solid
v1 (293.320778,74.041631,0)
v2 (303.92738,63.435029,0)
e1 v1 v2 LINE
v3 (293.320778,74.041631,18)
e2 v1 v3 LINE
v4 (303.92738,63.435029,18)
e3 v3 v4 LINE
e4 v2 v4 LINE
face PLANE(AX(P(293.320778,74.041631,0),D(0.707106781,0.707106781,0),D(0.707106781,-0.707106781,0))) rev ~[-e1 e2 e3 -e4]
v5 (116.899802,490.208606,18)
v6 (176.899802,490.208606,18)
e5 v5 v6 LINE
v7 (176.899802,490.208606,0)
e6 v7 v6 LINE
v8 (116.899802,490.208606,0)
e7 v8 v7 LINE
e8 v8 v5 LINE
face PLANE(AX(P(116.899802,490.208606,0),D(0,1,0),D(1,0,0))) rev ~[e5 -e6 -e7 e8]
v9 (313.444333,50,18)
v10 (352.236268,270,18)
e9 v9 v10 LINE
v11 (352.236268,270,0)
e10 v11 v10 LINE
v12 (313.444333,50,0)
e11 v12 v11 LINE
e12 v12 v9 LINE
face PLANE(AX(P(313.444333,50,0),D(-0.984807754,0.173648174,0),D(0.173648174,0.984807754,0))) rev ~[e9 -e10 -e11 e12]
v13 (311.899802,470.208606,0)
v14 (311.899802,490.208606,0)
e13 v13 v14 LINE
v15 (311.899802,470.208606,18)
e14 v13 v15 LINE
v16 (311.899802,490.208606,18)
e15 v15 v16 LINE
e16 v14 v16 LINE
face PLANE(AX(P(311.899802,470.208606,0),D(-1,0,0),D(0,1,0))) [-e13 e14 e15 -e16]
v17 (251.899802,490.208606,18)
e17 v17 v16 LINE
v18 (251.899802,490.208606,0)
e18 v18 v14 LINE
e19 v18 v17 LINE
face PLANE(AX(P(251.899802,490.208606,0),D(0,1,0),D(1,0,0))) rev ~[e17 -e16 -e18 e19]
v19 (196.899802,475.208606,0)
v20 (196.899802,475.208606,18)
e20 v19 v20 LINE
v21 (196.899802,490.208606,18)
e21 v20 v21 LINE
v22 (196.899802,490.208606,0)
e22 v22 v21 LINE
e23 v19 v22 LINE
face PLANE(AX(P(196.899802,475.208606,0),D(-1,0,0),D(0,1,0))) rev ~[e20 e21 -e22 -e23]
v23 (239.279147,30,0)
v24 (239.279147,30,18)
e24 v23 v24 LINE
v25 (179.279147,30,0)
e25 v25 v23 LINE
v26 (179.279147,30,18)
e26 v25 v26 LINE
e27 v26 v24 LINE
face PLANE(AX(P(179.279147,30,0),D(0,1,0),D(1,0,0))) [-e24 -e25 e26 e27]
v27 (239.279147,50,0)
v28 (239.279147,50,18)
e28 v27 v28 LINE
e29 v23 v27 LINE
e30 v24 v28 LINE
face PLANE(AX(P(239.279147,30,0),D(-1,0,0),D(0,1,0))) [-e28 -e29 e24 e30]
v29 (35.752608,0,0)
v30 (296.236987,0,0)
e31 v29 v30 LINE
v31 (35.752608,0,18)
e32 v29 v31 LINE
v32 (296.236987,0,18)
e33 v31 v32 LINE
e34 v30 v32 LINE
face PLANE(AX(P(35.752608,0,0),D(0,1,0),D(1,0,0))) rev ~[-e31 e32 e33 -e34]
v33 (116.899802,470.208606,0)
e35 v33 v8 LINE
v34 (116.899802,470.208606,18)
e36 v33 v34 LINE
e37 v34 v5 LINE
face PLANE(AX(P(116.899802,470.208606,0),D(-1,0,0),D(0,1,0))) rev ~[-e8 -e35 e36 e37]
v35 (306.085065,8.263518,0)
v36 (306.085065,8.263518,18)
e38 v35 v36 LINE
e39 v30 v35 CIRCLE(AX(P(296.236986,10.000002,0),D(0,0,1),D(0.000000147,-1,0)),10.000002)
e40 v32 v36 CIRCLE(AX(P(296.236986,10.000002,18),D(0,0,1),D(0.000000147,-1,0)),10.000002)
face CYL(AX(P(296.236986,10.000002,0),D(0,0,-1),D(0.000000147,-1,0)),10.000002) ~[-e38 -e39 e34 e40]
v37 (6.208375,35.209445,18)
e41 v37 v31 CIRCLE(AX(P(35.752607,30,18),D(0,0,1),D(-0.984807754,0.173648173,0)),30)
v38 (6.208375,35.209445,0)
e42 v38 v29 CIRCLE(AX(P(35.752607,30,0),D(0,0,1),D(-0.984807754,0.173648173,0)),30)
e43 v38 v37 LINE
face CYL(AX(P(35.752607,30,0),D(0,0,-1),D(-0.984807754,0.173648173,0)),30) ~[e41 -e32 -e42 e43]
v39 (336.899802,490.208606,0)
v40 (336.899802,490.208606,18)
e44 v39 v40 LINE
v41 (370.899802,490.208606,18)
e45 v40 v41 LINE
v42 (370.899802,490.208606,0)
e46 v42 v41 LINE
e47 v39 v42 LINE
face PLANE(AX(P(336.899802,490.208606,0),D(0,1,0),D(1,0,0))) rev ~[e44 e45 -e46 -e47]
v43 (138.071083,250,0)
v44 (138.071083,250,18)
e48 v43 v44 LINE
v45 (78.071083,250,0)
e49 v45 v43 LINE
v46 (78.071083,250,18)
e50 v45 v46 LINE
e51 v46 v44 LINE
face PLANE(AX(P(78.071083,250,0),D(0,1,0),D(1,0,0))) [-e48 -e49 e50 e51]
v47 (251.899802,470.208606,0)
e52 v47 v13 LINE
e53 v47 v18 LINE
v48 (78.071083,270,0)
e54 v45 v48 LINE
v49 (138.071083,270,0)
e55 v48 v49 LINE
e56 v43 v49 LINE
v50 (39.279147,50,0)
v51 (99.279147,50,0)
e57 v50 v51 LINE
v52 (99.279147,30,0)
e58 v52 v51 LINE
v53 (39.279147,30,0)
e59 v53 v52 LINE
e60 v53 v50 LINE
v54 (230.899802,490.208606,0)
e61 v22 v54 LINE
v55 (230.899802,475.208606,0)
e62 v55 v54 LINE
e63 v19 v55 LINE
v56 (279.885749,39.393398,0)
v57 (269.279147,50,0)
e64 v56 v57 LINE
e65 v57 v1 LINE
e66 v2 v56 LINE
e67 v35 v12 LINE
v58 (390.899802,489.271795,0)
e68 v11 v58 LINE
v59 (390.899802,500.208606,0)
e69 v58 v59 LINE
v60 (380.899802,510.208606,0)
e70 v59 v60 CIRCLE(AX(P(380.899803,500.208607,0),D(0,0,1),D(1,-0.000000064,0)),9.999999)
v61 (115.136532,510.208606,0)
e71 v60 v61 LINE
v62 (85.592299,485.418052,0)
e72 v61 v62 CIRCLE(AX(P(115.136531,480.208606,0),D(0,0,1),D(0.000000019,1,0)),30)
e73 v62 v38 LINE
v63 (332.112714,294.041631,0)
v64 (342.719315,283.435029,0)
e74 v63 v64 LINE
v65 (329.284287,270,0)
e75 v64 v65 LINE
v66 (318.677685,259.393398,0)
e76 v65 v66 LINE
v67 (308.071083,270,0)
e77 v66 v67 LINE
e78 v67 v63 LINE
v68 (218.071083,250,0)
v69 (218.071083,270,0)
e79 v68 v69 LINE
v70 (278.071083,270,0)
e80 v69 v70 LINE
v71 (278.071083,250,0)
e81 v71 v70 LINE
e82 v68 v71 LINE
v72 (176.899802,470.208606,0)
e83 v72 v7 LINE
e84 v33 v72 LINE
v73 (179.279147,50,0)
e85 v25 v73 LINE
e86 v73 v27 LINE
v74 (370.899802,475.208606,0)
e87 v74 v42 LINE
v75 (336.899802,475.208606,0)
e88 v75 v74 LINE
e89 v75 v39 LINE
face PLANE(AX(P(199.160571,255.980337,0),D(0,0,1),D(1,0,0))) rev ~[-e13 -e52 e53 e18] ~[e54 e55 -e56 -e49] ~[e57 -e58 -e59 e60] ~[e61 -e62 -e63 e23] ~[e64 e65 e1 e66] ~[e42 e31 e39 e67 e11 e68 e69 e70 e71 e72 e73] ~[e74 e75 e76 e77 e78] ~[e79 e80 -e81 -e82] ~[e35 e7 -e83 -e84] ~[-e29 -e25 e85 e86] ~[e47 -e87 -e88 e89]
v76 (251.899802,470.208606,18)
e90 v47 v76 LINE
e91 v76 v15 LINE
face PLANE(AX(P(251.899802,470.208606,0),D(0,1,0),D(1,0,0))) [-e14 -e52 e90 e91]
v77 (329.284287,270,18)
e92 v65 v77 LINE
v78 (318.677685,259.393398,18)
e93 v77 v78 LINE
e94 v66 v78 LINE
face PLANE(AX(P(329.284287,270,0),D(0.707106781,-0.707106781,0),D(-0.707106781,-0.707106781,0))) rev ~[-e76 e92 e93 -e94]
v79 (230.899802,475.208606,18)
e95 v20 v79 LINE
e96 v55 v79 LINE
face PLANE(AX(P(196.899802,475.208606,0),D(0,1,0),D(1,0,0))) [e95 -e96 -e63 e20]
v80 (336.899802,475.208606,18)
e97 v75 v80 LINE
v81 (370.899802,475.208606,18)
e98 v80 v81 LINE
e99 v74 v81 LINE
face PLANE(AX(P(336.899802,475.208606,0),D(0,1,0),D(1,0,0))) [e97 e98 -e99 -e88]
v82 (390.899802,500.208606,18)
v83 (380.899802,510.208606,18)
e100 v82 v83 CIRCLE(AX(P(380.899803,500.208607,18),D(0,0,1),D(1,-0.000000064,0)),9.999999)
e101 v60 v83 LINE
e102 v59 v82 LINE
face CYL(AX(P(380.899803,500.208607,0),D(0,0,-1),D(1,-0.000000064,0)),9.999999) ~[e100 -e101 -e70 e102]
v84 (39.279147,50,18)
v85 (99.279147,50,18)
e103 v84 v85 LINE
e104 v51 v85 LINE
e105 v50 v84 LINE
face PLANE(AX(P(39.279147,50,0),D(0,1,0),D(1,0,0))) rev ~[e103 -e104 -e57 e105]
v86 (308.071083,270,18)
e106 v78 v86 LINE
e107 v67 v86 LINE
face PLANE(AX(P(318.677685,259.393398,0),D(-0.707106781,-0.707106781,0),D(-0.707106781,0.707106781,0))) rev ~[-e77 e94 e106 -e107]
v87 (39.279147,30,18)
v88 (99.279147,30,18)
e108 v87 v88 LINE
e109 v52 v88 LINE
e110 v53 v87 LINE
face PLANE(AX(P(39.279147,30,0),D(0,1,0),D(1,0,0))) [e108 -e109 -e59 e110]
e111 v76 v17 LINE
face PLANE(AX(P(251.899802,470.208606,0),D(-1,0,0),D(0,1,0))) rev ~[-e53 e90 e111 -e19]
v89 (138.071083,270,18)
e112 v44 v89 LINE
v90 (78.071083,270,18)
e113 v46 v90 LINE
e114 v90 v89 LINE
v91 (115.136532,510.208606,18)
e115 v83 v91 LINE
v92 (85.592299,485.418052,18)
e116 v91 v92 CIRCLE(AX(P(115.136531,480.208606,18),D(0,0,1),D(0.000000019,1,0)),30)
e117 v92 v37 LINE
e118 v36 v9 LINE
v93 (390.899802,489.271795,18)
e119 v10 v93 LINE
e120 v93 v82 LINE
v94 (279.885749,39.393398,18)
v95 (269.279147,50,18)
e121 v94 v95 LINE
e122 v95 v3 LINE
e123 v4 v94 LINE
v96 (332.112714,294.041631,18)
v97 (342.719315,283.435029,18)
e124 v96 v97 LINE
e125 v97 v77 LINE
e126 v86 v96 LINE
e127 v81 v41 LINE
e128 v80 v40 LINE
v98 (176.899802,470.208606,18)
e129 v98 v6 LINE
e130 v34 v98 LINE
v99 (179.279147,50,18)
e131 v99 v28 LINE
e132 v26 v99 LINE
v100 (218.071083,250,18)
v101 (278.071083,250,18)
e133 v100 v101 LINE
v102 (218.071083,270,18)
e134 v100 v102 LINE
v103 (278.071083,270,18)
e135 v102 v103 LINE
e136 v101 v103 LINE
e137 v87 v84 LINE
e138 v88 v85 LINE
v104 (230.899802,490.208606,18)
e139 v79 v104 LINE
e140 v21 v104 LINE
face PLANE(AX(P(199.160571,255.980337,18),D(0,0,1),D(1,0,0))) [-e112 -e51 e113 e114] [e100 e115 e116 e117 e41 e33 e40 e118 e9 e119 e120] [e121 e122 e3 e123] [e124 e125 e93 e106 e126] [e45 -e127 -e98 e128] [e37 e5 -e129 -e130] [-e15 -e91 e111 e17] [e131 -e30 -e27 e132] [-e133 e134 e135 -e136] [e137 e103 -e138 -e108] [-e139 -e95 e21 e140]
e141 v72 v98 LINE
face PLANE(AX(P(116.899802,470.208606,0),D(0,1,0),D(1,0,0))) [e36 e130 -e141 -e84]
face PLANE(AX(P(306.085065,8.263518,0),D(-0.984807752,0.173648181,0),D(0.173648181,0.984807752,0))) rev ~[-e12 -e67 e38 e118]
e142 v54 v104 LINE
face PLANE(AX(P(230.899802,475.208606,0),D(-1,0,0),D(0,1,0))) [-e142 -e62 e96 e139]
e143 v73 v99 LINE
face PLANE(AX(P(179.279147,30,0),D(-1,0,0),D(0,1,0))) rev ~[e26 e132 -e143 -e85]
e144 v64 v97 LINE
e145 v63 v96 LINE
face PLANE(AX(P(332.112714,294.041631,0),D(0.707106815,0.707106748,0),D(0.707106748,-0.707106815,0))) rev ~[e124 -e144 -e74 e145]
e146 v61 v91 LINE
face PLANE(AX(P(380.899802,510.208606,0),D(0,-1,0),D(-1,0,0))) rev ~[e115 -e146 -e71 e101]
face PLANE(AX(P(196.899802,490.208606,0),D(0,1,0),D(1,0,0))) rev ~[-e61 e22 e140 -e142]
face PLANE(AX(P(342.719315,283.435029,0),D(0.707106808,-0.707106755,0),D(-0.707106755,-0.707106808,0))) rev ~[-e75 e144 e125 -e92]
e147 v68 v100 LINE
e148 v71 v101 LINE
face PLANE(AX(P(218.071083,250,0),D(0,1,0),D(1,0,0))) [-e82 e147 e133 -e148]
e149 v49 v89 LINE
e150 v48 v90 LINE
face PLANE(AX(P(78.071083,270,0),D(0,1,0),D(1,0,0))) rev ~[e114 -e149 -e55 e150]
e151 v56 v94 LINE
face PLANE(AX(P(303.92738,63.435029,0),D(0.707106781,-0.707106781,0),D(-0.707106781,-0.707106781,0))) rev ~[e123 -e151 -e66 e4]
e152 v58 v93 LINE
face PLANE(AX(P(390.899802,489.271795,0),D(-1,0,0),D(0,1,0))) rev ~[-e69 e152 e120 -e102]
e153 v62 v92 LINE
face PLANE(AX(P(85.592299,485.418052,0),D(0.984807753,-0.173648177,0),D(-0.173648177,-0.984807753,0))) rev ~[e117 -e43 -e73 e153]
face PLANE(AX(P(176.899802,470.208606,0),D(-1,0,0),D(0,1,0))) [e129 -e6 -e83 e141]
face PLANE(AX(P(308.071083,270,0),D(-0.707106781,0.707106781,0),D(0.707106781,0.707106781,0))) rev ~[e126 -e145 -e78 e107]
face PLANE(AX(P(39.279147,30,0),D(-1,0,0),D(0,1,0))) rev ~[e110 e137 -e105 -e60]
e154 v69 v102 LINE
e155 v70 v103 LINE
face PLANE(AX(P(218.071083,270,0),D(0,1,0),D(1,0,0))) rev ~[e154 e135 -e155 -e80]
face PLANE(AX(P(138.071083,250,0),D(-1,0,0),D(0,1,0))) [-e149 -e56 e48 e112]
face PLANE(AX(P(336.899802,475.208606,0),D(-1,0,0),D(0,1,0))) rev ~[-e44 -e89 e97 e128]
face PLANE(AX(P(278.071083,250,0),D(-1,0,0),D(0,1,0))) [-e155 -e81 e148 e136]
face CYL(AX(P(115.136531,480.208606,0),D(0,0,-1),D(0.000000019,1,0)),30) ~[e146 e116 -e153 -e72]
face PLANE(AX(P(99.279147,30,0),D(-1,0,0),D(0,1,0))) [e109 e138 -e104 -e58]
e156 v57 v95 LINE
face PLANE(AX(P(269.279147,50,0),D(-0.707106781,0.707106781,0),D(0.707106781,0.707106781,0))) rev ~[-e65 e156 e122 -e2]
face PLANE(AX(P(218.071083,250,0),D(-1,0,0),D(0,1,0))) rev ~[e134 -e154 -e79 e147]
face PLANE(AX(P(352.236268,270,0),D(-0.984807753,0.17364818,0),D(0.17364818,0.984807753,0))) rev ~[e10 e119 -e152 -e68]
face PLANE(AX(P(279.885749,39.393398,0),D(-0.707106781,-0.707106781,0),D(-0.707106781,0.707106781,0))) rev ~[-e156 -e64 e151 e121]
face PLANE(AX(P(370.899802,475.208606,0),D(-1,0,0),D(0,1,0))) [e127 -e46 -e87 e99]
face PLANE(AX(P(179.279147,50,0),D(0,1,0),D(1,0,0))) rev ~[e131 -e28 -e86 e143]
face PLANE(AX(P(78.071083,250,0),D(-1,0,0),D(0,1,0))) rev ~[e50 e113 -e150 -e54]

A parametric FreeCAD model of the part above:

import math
import FreeCAD as App
import Part
import Sketcher
Q = App.Units.Quantity


def add_polygon(sketch, points):
    """Adds a closed chain of lines whose ends are joined by coincident constraints."""
    first, n = sketch.GeometryCount, len(points)
    for a, b in zip(points, points[1:] + points[:1]):
        sketch.addGeometry(Part.LineSegment(App.Vector(*a, 0), App.Vector(*b, 0)), False)
    for i in range(n):
        sketch.addConstraint(Sketcher.Constraint("Coincident", first + i, 2, first + (i + 1) % n, 1))

doc = App.newDocument("Part")
body = doc.addObject("PartDesign::Body", "Body")

# Sketch on XY plane
sketch1 = body.newObject("Sketcher::SketchObject", "Sketch")
sketch1.AttachmentSupport = (doc.getObject("XY_Plane"), [""])
sketch1.MapMode = "FlatFace"
sketch1.addGeometry(Part.ArcOfCircle(Part.Circle(App.Vector(115, 480, 0), App.Vector(0, 0, 1), 30), math.radians(90), math.radians(170)), False)  # 0
sketch1.addGeometry(Part.LineSegment(App.Vector(86, 485, 0), App.Vector(6, 35, 0)), False)  # 1
sketch1.addGeometry(Part.ArcOfCircle(Part.Circle(App.Vector(36, 30, 0), App.Vector(0, 0, 1), 30), math.radians(170), math.radians(270)), False)  # 2
sketch1.addGeometry(Part.LineSegment(App.Vector(36, 0, 0), App.Vector(296, 0, 0)), False)  # 3
sketch1.addGeometry(Part.ArcOfCircle(Part.Circle(App.Vector(296, 10, 0), App.Vector(0, 0, 1), 10), math.radians(-90), math.radians(-10)), False)  # 4
sketch1.addGeometry(Part.LineSegment(App.Vector(306, 8, 0), App.Vector(313, 50, 0)), False)  # 5
sketch1.addGeometry(Part.LineSegment(App.Vector(313, 50, 0), App.Vector(352, 270, 0)), False)  # 6
sketch1.addGeometry(Part.LineSegment(App.Vector(352, 270, 0), App.Vector(391, 489, 0)), False)  # 7
sketch1.addGeometry(Part.LineSegment(App.Vector(391, 489, 0), App.Vector(391, 500, 0)), False)  # 8
sketch1.addGeometry(Part.ArcOfCircle(Part.Circle(App.Vector(381, 500, 0), App.Vector(0, 0, 1), 10), math.radians(0), math.radians(90)), False)  # 9
sketch1.addGeometry(Part.LineSegment(App.Vector(381, 510, 0), App.Vector(115, 510, 0)), False)  # 10
add_polygon(sketch1, [(99, 30), (39, 30), (39, 50), (99, 50)])  # lines 11-14
add_polygon(sketch1, [(138, 250), (78, 250), (78, 270), (138, 270)])  # lines 15-18
add_polygon(sketch1, [(239, 30), (179, 30), (179, 50), (239, 50)])  # lines 19-22
add_polygon(sketch1, [(293, 74), (304, 63), (280, 39), (269, 50)])  # lines 23-26
add_polygon(sketch1, [(278, 250), (218, 250), (218, 270), (278, 270)])  # lines 27-30
add_polygon(sketch1, [(177, 470), (117, 470), (117, 490), (177, 490)])  # lines 31-34
add_polygon(sketch1, [(332, 294), (343, 283), (329, 270), (319, 259), (308, 270)])  # lines 35-39
add_polygon(sketch1, [(231, 475), (197, 475), (197, 490), (231, 490)])  # lines 40-43
add_polygon(sketch1, [(312, 470), (252, 470), (252, 490), (312, 490)])  # lines 44-47
add_polygon(sketch1, [(371, 475), (337, 475), (337, 490), (371, 490)])  # lines 48-51
sketch1.addConstraint(Sketcher.Constraint("Tangent", 0, 2, 1, 1))
sketch1.addConstraint(Sketcher.Constraint("Tangent", 1, 2, 2, 1))
sketch1.addConstraint(Sketcher.Constraint("Tangent", 2, 2, 3, 1))
sketch1.addConstraint(Sketcher.Constraint("Tangent", 3, 2, 4, 1))
sketch1.addConstraint(Sketcher.Constraint("Tangent", 4, 2, 5, 1))
sketch1.addConstraint(Sketcher.Constraint("Coincident", 5, 2, 6, 1))
sketch1.addConstraint(Sketcher.Constraint("Coincident", 6, 2, 7, 1))
sketch1.addConstraint(Sketcher.Constraint("Coincident", 7, 2, 8, 1))
sketch1.addConstraint(Sketcher.Constraint("Tangent", 8, 2, 9, 1))
sketch1.addConstraint(Sketcher.Constraint("Tangent", 9, 2, 10, 1))
sketch1.addConstraint(Sketcher.Constraint("Tangent", 10, 2, 0, 1))
sketch1.addConstraint(Sketcher.Constraint("Horizontal", 3))
sketch1.addConstraint(Sketcher.Constraint("Vertical", 8))
sketch1.addConstraint(Sketcher.Constraint("Horizontal", 10))
sketch1.addConstraint(Sketcher.Constraint("Horizontal", 11))
sketch1.addConstraint(Sketcher.Constraint("Vertical", 12))
sketch1.addConstraint(Sketcher.Constraint("Horizontal", 13))
sketch1.addConstraint(Sketcher.Constraint("Vertical", 14))
sketch1.addConstraint(Sketcher.Constraint("Horizontal", 15))
sketch1.addConstraint(Sketcher.Constraint("Vertical", 16))
sketch1.addConstraint(Sketcher.Constraint("Horizontal", 17))
sketch1.addConstraint(Sketcher.Constraint("Vertical", 18))
sketch1.addConstraint(Sketcher.Constraint("Horizontal", 19))
sketch1.addConstraint(Sketcher.Constraint("Vertical", 20))
sketch1.addConstraint(Sketcher.Constraint("Horizontal", 21))
sketch1.addConstraint(Sketcher.Constraint("Vertical", 22))
sketch1.addConstraint(Sketcher.Constraint("Horizontal", 27))
sketch1.addConstraint(Sketcher.Constraint("Vertical", 28))
sketch1.addConstraint(Sketcher.Constraint("Horizontal", 29))
sketch1.addConstraint(Sketcher.Constraint("Vertical", 30))
sketch1.addConstraint(Sketcher.Constraint("Horizontal", 31))
sketch1.addConstraint(Sketcher.Constraint("Vertical", 32))
sketch1.addConstraint(Sketcher.Constraint("Horizontal", 33))
sketch1.addConstraint(Sketcher.Constraint("Vertical", 34))
sketch1.addConstraint(Sketcher.Constraint("Horizontal", 40))
sketch1.addConstraint(Sketcher.Constraint("Vertical", 41))
sketch1.addConstraint(Sketcher.Constraint("Horizontal", 42))
sketch1.addConstraint(Sketcher.Constraint("Vertical", 43))
sketch1.addConstraint(Sketcher.Constraint("Horizontal", 44))
sketch1.addConstraint(Sketcher.Constraint("Vertical", 45))
sketch1.addConstraint(Sketcher.Constraint("Horizontal", 46))
sketch1.addConstraint(Sketcher.Constraint("Vertical", 47))
sketch1.addConstraint(Sketcher.Constraint("Horizontal", 48))
sketch1.addConstraint(Sketcher.Constraint("Vertical", 49))
sketch1.addConstraint(Sketcher.Constraint("Horizontal", 50))
sketch1.addConstraint(Sketcher.Constraint("Vertical", 51))
sketch1.addConstraint(Sketcher.Constraint("Equal", 0, 2))
sketch1.addConstraint(Sketcher.Constraint("PointOnObject", 2, 2, -1))
sketch1.addConstraint(Sketcher.Constraint("Parallel", 1, 5))
sketch1.addConstraint(Sketcher.Constraint("Parallel", 5, 6))
sketch1.addConstraint(Sketcher.Constraint("Parallel", 6, 7))
sketch1.addConstraint(Sketcher.Constraint("Perpendicular", 23, 24))
sketch1.addConstraint(Sketcher.Constraint("Perpendicular", 24, 25))
sketch1.addConstraint(Sketcher.Constraint("Perpendicular", 25, 26))
sketch1.addConstraint(Sketcher.Constraint("Perpendicular", 26, 35))
sketch1.addConstraint(Sketcher.Constraint("Perpendicular", 35, 36))
sketch1.addConstraint(Sketcher.Constraint("Parallel", 36, 37))
sketch1.addConstraint(Sketcher.Constraint("Perpendicular", 37, 38))
sketch1.addConstraint(Sketcher.Constraint("Perpendicular", 38, 39))
sketch1.addConstraint(Sketcher.Constraint("Horizontal", 2, 3, 11, 2))
sketch1.addConstraint(Sketcher.Constraint("Horizontal", 5, 2, 12, 2))
sketch1.addConstraint(Sketcher.Constraint("Horizontal", 6, 2, 16, 2))
sketch1.addConstraint(Sketcher.Constraint("Horizontal", 14, 2, 19, 2))
sketch1.addConstraint(Sketcher.Constraint("Horizontal", 13, 2, 20, 2))
sketch1.addConstraint(Sketcher.Constraint("Horizontal", 21, 2, 25, 2))
sketch1.addConstraint(Sketcher.Constraint("Horizontal", 18, 2, 27, 2))
sketch1.addConstraint(Sketcher.Constraint("Horizontal", 17, 2, 28, 2))
sketch1.addConstraint(Sketcher.Constraint("Horizontal", 29, 2, 36, 2))
sketch1.addConstraint(Sketcher.Constraint("Horizontal", 36, 2, 38, 2))
sketch1.addConstraint(Sketcher.Constraint("Horizontal", 33, 2, 41, 2))
sketch1.addConstraint(Sketcher.Constraint("Horizontal", 34, 2, 44, 2))
sketch1.addConstraint(Sketcher.Constraint("Horizontal", 42, 2, 45, 2))
sketch1.addConstraint(Sketcher.Constraint("Horizontal", 43, 2, 48, 2))
sketch1.addConstraint(Sketcher.Constraint("Horizontal", 46, 2, 49, 2))
sketch1.addConstraint(Sketcher.Constraint("Equal", 13, 15))
sketch1.addConstraint(Sketcher.Constraint("Equal", 17, 19))
sketch1.addConstraint(Sketcher.Constraint("Equal", 21, 27))
sketch1.addConstraint(Sketcher.Constraint("Equal", 29, 31))
sketch1.addConstraint(Sketcher.Constraint("Equal", 33, 44))
sketch1.addConstraint(Sketcher.Constraint("Equal", 42, 48))
sketch1.addConstraint(Sketcher.Constraint("Equal", 14, 16))
sketch1.addConstraint(Sketcher.Constraint("Equal", 30, 32))
sketch1.addConstraint(Sketcher.Constraint("Equal", 25, 35))
sketch1.addConstraint(Sketcher.Constraint("Equal", 35, 37))
sketch1.addConstraint(Sketcher.Constraint("Equal", 26, 39))
sketch1.addConstraint(Sketcher.Constraint("Radius", 0, Q("30 mm")))
sketch1.addConstraint(Sketcher.Constraint("Radius", 9, Q("9.999999 mm")))
sketch1.addConstraint(Sketcher.Constraint("DistanceX", 11, 2, 11, 1, Q("60 mm")))
sketch1.addConstraint(Sketcher.Constraint("DistanceX", 40, 2, 40, 1, Q("34 mm")))
sketch1.addConstraint(Sketcher.Constraint("DistanceY", 12, 1, 12, 2, Q("20 mm")))
sketch1.addConstraint(Sketcher.Constraint("DistanceY", 41, 1, 41, 2, Q("15 mm")))
sketch1.addConstraint(Sketcher.Constraint("Angle", 1, Q("-100 deg")))
sketch1.addConstraint(Sketcher.Constraint("Distance", 23, Q("15 mm")))
sketch1.addConstraint(Sketcher.Constraint("Distance", 24, Q("34.000001 mm")))
sketch1.addConstraint(Sketcher.Constraint("DistanceY", -1, 1, 6, 2, Q("270 mm")))
sketch1.addConstraint(Sketcher.Constraint("DistanceX", 14, 2, 19, 2, Q("80 mm")))
sketch1.addConstraint(Sketcher.Constraint("DistanceX", 21, 2, 25, 2, Q("30 mm")))
sketch1.addConstraint(Sketcher.Constraint("DistanceX", 18, 2, 27, 2, Q("80 mm")))
sketch1.addConstraint(Sketcher.Constraint("DistanceY", 31, 2, 0, 3, Q("10 mm")))
sketch1.addConstraint(Sketcher.Constraint("DistanceX", 29, 2, 38, 2, Q("30 mm")))
sketch1.addConstraint(Sketcher.Constraint("DistanceX", 34, 2, 40, 2, Q("20 mm")))
sketch1.addConstraint(Sketcher.Constraint("DistanceX", 43, 2, 44, 2, Q("21 mm")))
sketch1.addConstraint(Sketcher.Constraint("DistanceX", 46, 2, 9, 3, Q("69.000001 mm")))
sketch1.addConstraint(Sketcher.Constraint("DistanceX", 47, 2, 48, 2, Q("25 mm")))
sketch1.addConstraint(Sketcher.Constraint("Radius", 4, Q("10.000002 mm")))
sketch1.addConstraint(Sketcher.Constraint("Distance", 1, Q("457.1538 mm")))
sketch1.addConstraint(Sketcher.Constraint("DistanceX", 3, 1, 3, 2, Q("260.484379 mm")))
sketch1.addConstraint(Sketcher.Constraint("DistanceX", 10, 2, 10, 1, Q("265.76327 mm")))
sketch1.addConstraint(Sketcher.Constraint("DistanceX", -1, 1, 0, 2, Q("85.592299 mm")))
sketch1.addConstraint(Sketcher.Constraint("DistanceX", -1, 1, 23, 2, Q("303.92738 mm")))
sketch1.addConstraint(Sketcher.Constraint("DistanceX", 16, 2, 0, 3, Q("37.065448 mm")))
pad1 = body.newObject("PartDesign::Pad", "Pad")
pad1.Profile = sketch1
pad1.Length = 18

doc.recompute()
